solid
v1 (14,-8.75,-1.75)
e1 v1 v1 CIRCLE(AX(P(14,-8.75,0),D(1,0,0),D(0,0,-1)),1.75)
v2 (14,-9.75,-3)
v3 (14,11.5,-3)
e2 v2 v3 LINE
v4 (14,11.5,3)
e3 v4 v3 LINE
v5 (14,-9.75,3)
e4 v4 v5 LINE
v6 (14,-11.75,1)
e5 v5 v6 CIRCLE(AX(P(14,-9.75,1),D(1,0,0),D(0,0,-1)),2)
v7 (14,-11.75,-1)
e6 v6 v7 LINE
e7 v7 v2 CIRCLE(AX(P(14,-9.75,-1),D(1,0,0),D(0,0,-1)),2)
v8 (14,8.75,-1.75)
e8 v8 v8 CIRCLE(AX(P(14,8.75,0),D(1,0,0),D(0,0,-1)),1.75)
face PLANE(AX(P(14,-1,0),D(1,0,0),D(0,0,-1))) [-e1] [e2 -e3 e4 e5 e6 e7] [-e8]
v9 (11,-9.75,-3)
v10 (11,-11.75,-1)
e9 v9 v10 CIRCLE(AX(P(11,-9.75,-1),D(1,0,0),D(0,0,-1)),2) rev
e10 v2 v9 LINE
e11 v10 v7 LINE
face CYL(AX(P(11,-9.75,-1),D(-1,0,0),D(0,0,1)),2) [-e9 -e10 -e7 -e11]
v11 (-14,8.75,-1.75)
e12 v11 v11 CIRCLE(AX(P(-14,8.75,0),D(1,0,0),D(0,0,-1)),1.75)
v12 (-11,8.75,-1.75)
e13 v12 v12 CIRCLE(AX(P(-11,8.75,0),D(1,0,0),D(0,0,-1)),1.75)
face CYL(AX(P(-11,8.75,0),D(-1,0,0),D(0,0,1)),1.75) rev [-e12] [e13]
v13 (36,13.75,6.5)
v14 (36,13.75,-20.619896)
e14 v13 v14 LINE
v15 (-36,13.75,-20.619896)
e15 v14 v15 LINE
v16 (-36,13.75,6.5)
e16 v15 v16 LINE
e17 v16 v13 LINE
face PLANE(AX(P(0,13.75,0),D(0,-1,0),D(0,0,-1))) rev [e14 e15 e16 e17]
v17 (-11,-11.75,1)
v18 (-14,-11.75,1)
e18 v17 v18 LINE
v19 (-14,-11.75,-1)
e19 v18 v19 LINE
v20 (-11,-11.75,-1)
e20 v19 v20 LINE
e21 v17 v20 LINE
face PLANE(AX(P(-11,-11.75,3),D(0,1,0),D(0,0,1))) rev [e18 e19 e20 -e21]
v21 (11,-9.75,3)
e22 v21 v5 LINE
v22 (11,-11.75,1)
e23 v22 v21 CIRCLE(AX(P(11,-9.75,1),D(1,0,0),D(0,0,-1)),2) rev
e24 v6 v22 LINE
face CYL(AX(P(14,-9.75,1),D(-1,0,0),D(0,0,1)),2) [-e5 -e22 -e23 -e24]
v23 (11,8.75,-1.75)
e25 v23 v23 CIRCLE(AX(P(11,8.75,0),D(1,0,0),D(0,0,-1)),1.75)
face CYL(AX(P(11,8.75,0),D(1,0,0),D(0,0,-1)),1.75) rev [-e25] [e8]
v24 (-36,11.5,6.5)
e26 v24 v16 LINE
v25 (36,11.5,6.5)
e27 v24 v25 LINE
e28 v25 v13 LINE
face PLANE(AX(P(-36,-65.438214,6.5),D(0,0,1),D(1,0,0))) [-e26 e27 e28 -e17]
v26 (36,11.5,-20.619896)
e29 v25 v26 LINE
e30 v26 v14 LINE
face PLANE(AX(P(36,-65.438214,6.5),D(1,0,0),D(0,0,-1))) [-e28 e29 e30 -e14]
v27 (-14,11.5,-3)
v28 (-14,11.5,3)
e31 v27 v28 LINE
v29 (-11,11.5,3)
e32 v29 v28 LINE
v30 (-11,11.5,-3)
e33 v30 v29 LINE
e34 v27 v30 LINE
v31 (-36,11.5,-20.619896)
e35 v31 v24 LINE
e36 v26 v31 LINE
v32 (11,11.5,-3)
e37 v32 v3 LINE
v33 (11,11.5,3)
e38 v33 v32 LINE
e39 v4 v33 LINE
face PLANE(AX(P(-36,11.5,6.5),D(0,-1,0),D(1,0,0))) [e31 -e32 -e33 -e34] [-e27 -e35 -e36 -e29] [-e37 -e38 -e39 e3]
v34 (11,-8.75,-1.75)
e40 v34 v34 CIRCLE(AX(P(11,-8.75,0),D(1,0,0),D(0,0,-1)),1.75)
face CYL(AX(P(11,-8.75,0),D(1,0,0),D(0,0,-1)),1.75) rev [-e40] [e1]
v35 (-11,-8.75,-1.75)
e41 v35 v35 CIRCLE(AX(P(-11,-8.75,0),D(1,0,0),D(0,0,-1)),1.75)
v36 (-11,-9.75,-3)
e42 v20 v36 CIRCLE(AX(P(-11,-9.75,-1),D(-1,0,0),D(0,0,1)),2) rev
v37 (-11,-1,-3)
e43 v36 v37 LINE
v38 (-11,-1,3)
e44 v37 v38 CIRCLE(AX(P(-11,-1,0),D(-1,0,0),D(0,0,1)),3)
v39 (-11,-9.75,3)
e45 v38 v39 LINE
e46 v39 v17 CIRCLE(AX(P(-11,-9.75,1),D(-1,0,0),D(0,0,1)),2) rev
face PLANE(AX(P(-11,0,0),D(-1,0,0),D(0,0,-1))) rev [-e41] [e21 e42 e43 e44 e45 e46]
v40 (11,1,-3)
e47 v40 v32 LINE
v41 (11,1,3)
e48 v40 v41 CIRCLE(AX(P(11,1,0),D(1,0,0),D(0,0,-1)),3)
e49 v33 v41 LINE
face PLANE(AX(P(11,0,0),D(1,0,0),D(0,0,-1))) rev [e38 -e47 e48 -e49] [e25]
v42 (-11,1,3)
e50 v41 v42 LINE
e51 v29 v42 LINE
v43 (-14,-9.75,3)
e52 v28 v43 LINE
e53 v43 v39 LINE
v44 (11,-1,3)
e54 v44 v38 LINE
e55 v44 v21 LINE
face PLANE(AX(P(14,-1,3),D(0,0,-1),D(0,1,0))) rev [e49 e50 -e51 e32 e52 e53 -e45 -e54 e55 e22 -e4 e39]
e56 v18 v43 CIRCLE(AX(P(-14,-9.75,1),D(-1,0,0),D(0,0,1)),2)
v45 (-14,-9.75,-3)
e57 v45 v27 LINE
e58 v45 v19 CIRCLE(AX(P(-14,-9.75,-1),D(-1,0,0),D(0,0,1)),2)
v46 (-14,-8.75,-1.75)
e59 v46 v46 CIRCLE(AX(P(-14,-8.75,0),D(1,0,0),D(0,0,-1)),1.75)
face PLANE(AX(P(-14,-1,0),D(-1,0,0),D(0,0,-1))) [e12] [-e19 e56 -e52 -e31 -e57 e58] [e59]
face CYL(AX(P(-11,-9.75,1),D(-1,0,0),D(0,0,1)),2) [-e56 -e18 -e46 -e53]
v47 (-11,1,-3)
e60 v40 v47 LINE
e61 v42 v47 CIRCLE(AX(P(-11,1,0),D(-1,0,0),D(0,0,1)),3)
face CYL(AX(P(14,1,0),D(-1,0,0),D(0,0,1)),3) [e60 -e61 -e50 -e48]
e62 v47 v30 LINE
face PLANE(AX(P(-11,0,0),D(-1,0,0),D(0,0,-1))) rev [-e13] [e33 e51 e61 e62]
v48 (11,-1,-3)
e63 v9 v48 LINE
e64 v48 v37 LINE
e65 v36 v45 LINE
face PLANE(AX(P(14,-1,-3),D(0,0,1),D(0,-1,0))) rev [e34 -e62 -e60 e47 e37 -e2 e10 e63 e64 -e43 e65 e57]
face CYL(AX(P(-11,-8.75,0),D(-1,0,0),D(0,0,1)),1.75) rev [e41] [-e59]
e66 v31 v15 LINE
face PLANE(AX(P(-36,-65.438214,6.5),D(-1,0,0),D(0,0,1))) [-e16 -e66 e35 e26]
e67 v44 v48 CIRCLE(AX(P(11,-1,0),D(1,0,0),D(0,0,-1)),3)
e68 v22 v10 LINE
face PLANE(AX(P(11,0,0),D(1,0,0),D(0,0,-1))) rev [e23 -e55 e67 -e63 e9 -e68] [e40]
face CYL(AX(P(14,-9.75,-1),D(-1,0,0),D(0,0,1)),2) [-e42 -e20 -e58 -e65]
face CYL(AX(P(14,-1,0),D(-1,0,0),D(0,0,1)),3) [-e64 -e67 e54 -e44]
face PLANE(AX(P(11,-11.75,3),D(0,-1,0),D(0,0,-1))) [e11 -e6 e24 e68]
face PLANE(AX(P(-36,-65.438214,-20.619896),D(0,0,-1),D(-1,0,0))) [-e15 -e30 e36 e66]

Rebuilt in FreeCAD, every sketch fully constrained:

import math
import FreeCAD as App
import Part
import Sketcher

V = App.Vector


def edges_at(feature, points):
    """Names of the edges that pass closest to the given points."""
    edges = feature.Shape.Edges
    near = lambda p: min(range(len(edges)), key=lambda i: edges[i].distToShape(Part.Vertex(*p))[0])
    return sorted({f"Edge{near(p) + 1}" for p in points})

doc = App.newDocument("Part")
body = doc.addObject("PartDesign::Body", "Body")

sketch1 = body.newObject("Sketcher::SketchObject", "Sketch")
sketch1.AttachmentSupport = (doc.getObject("YZ_Plane"), [""])
sketch1.MapMode = "FlatFace"
sketch1.addGeometry([
    Part.LineSegment(V(1, 3, 0), V(-1, 3, 0)),
    Part.ArcOfCircle(Part.Circle(V(-1, 0, 0), V(0, 0, 1), 3), math.radians(90), math.radians(270)),
    Part.LineSegment(V(-1, -3, 0), V(1, -3, 0)),
    Part.ArcOfCircle(Part.Circle(V(1, 0, 0), V(0, 0, 1), 3), math.radians(-90), math.radians(90)),
], False)
sketch1.addConstraint([
    Sketcher.Constraint("Tangent", 0, 2, 1, 1),
    Sketcher.Constraint("Tangent", 1, 2, 2, 1),
    Sketcher.Constraint("Tangent", 2, 2, 3, 1),
    Sketcher.Constraint("Tangent", 3, 2, 0, 1),
    Sketcher.Constraint("Horizontal", 0),
    Sketcher.Constraint("Horizontal", 2),
    Sketcher.Constraint("Symmetric", 1, 3, 3, 3, -1, 1),
    Sketcher.Constraint("Radius", 1, 3.0),
    Sketcher.Constraint("DistanceX", 0, 2, 0, 1, 2.0),
])
pad1 = body.newObject("PartDesign::Pad", "Pad")
pad1.Profile = sketch1
pad1.Length = 14

sketch2 = body.newObject("Sketcher::SketchObject", "Sketch001")
sketch2.AttachmentSupport = (doc.getObject("YZ_Plane"), [""])
sketch2.MapMode = "FlatFace"
sketch2.AttachmentOffset = App.Placement(V(0, 0, 14), App.Rotation())
sketch2.addGeometry([
    Part.LineSegment(V(11.8, 3, 0), V(-11.8, 3, 0)),
    Part.LineSegment(V(-11.8, 3, 0), V(-11.8, -3, 0)),
    Part.LineSegment(V(-11.8, -3, 0), V(11.8, -3, 0)),
    Part.LineSegment(V(11.8, -3, 0), V(11.8, 3, 0)),
    Part.Circle(V(-8.8, 0, 0), V(0, 0, 1), 1.8),
    Part.Circle(V(8.8, 0, 0), V(0, 0, 1), 1.8),
], False)
sketch2.addConstraint([
    Sketcher.Constraint("Coincident", 0, 2, 1, 1),
    Sketcher.Constraint("Coincident", 1, 2, 2, 1),
    Sketcher.Constraint("Coincident", 2, 2, 3, 1),
    Sketcher.Constraint("Coincident", 3, 2, 0, 1),
    Sketcher.Constraint("Horizontal", 0),
    Sketcher.Constraint("Vertical", 1),
    Sketcher.Constraint("Horizontal", 2),
    Sketcher.Constraint("Vertical", 3),
    Sketcher.Constraint("Equal", 4, 5),
    Sketcher.Constraint("Symmetric", 4, 3, 5, 3, -1, 1),
    Sketcher.Constraint("Symmetric", 0, 2, 2, 2, -1, 1),
    Sketcher.Constraint("PointOnObject", 4, 3, -1),
    Sketcher.Constraint("Diameter", 4, 3.5),
    Sketcher.Constraint("DistanceY", 1, 2, 1, 1, 6.0),
    Sketcher.Constraint("DistanceX", 0, 2, 0, 1, 23.5),
    Sketcher.Constraint("DistanceX", 0, 2, 4, 3, 3.0),
])
pad2 = body.newObject("PartDesign::Pad", "Pad001")
pad2.Profile = sketch2
pad2.Length = 3
pad2.Reversed = True
doc.recompute()

fillet = body.newObject("PartDesign::Fillet", "Fillet")
fillet.Base = (pad2, edges_at(pad2, [(12.5, -11.75, -3), (12.5, -11.75, 3)]))
fillet.Radius = 2
doc.recompute()

mirrored = body.newObject("PartDesign::Mirrored", "Mirrored")
mirrored.Originals = [pad1, pad2]
mirrored.MirrorPlane = (doc.getObject("YZ_Plane"), [""])
body.Tip = mirrored
doc.recompute()

fillet2 = body.newObject("PartDesign::Fillet", "Fillet001")
fillet2.Base = (mirrored, edges_at(mirrored, [(-12.5, -11.75, -3), (-12.5, -11.75, 3)]))
fillet2.Radius = 2

sketch3 = body.newObject("Sketcher::SketchObject", "Sketch002")
sketch3.AttachmentSupport = (doc.getObject("XZ_Plane"), [""])
sketch3.MapMode = "FlatFace"
sketch3.AttachmentOffset = App.Placement(V(0, 0, -11.75), App.Rotation())
sketch3.addGeometry([
    Part.LineSegment(V(-36, -21, 0), V(-36, 6, 0)),
    Part.LineSegment(V(-36, 6, 0), V(36, 6, 0)),
    Part.LineSegment(V(36, 6, 0), V(36, -21, 0)),
    Part.LineSegment(V(36, -21, 0), V(-36, -21, 0)),
], False)
sketch3.addConstraint([
    Sketcher.Constraint("Coincident", 0, 2, 1, 1),
    Sketcher.Constraint("Coincident", 1, 2, 2, 1),
    Sketcher.Constraint("Coincident", 2, 2, 3, 1),
    Sketcher.Constraint("Coincident", 3, 2, 0, 1),
    Sketcher.Constraint("Vertical", 0),
    Sketcher.Constraint("Horizontal", 1),
    Sketcher.Constraint("Vertical", 2),
    Sketcher.Constraint("Horizontal", 3),
    Sketcher.Constraint("DistanceX", 1, 1, 1, 2, 72.0),
    Sketcher.Constraint("DistanceX", 0, 2, -1, 1, 36.0),
    Sketcher.Constraint("DistanceY", -1, 1, 0, 2, 6.5),
    Sketcher.Constraint("DistanceY", 0, 1, 0, 2, 27.119896),
])
pad3 = body.newObject("PartDesign::Pad", "Pad002")
pad3.Profile = sketch3
pad3.Type = "TwoLengths"
pad3.Length = 2
pad3.Length2 = 0.25
pad3.Reversed = True

doc.recompute()
